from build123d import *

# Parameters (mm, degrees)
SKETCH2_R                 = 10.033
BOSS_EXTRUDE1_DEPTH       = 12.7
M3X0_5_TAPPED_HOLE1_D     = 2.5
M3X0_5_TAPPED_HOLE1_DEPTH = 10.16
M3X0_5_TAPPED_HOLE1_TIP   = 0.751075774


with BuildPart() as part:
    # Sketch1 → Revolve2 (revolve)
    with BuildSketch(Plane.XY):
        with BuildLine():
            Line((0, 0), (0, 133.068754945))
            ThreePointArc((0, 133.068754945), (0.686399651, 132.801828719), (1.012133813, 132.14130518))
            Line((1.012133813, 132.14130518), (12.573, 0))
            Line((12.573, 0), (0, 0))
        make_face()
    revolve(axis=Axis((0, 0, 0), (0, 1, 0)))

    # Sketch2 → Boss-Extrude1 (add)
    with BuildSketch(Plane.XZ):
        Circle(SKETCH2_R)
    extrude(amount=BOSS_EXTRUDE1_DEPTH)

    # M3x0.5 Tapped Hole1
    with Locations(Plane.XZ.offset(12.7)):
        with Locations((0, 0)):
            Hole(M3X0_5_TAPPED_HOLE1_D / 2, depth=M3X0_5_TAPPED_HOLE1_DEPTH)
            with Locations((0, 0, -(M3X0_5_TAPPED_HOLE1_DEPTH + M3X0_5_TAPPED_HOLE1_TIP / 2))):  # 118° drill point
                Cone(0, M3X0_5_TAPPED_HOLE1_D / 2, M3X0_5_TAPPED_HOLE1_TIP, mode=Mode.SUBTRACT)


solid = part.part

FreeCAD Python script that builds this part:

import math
import FreeCAD as App
import Part
import Sketcher

V = App.Vector
Q = App.Units.Quantity

doc = App.newDocument("Part")
body = doc.addObject("PartDesign::Body", "Body")

# Sketch on XY plane
sketch1 = body.newObject("Sketcher::SketchObject", "Sketch")
sketch1.AttachmentSupport = (doc.getObject("XY_Plane"), [""])
sketch1.MapMode = "FlatFace"
sketch1.addGeometry([
    Part.LineSegment(V(0, 133.068755, 0), V(0, 0, 0)),
    Part.LineSegment(V(0, 0, 0), V(12.573, 0, 0)),
    Part.LineSegment(V(12.573, 0, 0), V(1.012134, 132.141305, 0)),
    Part.ArcOfCircle(Part.Circle(V(0, 132.052755, 0), V(0, 0, 1), 1.016), math.radians(5), math.radians(90)),
], False)
sketch1.addConstraint([
    Sketcher.Constraint("Coincident", 0, 2, 1, 1),
    Sketcher.Constraint("Coincident", 1, 2, 2, 1),
    Sketcher.Constraint("Tangent", 2, 2, 3, 1),
    Sketcher.Constraint("Coincident", 3, 2, 0, 1),
    Sketcher.Constraint("Vertical", 0),
    Sketcher.Constraint("Horizontal", 1),
    Sketcher.Constraint("Coincident", 0, 2, -1, 1),
    Sketcher.Constraint("PointOnObject", 3, 3, -2),
    Sketcher.Constraint("Radius", 3, Q("0.04 in")),
    Sketcher.Constraint("Angle", 2, Q("95 deg")),
    Sketcher.Constraint("DistanceX", 1, 1, 1, 2, Q("0.495 in")),
])
revolution = body.newObject("PartDesign::Revolution", "Revolution")
revolution.Profile = sketch1
revolution.ReferenceAxis = (sketch1, ["V_Axis"])
revolution.Angle = 360

# Sketch on XZ plane
sketch2 = body.newObject("Sketcher::SketchObject", "Sketch001")
sketch2.AttachmentSupport = (doc.getObject("XZ_Plane"), [""])
sketch2.MapMode = "FlatFace"
sketch2.addGeometry(Part.Circle(V(0, 0, 0), V(0, 0, 1), 10.033), False)
sketch2.addConstraint([
    Sketcher.Constraint("Coincident", 0, 3, -1, 1),
    Sketcher.Constraint("Diameter", 0, Q("0.79 in")),
])
pad1 = body.newObject("PartDesign::Pad", "Pad")
pad1.Profile = sketch2
pad1.Length = Q("0.5 in")

# Sketch on XZ plane
sketch3 = body.newObject("Sketcher::SketchObject", "Sketch002")
sketch3.AttachmentSupport = (doc.getObject("XZ_Plane"), [""])
sketch3.MapMode = "FlatFace"
sketch3.AttachmentOffset = App.Placement(V(0, 0, 0.5 * 25.4), App.Rotation())
sketch3.addGeometry(Part.Circle(V(0, 0, 0), V(0, 0, 1), 1.25), False)
sketch3.addConstraint([
    Sketcher.Constraint("Coincident", 0, 3, -1, 1),
    Sketcher.Constraint("Diameter", 0, Q("2.5 mm")),
])
doc.recompute()
hole = body.newObject("PartDesign::Hole", "Hole")
hole.Profile = sketch3
hole.ThreadType = "None"
hole.Diameter = 2.5
hole.DepthType = "Dimension"
hole.Depth = Q("0.4 in")
hole.DrillPoint = "Angled"
hole.DrillPointAngle = 118

doc.recompute()
